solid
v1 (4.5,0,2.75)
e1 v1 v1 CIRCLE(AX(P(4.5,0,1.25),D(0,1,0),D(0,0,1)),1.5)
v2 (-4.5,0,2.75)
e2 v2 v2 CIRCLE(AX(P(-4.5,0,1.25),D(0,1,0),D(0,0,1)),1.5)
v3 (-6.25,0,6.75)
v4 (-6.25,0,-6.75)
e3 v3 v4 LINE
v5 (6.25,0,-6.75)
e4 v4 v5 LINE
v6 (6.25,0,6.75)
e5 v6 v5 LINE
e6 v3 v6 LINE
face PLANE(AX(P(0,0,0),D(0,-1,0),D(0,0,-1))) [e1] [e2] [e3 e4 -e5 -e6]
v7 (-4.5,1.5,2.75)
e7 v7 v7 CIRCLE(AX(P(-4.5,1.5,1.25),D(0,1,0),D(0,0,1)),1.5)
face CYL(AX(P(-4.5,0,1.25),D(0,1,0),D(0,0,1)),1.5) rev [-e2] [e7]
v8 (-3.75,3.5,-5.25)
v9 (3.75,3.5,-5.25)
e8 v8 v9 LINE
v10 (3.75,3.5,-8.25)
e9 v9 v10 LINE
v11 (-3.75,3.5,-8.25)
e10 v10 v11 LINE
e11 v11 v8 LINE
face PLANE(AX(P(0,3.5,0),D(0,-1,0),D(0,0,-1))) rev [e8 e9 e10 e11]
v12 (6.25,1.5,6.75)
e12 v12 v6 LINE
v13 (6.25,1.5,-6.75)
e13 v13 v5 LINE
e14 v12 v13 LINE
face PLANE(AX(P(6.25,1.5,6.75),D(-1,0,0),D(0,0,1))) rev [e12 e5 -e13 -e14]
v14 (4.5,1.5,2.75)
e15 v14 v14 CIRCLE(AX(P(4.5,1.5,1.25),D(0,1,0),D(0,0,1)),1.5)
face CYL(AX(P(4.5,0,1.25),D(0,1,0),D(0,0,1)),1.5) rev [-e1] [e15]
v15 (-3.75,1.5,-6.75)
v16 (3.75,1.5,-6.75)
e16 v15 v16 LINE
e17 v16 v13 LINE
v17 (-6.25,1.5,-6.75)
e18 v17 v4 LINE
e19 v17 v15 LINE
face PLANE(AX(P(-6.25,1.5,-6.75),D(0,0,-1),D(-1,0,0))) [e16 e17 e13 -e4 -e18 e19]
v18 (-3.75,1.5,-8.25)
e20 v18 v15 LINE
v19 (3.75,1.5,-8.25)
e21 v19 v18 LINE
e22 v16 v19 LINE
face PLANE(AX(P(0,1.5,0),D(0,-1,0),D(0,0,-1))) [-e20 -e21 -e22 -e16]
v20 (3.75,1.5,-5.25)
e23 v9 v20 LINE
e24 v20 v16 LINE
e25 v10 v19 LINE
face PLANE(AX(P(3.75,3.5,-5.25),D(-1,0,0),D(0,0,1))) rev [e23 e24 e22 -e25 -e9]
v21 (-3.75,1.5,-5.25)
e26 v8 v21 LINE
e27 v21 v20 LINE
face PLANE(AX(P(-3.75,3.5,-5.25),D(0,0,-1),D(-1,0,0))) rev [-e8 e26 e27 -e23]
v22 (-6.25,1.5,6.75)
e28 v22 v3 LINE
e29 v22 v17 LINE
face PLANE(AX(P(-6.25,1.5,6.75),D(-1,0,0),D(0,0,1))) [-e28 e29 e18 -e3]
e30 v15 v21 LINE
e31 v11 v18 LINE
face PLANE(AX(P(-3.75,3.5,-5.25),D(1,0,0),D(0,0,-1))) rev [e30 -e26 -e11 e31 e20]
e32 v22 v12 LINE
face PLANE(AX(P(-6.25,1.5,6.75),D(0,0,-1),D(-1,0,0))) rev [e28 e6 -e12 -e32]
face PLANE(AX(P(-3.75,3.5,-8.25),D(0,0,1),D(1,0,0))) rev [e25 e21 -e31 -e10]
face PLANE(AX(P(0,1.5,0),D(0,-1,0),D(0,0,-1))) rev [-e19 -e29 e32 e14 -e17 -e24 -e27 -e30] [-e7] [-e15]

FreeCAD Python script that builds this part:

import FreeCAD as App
import Part
import Sketcher
Q = App.Units.Quantity

doc = App.newDocument("Part")
body = doc.addObject("PartDesign::Body", "Body")

sketch1 = body.newObject("Sketcher::SketchObject", "Sketch")
sketch1.AttachmentSupport = (doc.getObject("XZ_Plane"), [""])
sketch1.MapMode = "FlatFace"
sketch1.addGeometry([
    Part.LineSegment(App.Vector(-6.25, -6.75, 0), App.Vector(-6.25, 6.75, 0)),
    Part.LineSegment(App.Vector(-6.25, 6.75, 0), App.Vector(6.25, 6.75, 0)),
    Part.LineSegment(App.Vector(6.25, 6.75, 0), App.Vector(6.25, -6.75, 0)),
    Part.LineSegment(App.Vector(6.25, -6.75, 0), App.Vector(-6.25, -6.75, 0)),
], False)
sketch1.addConstraint([
    Sketcher.Constraint("Coincident", 0, 2, 1, 1),
    Sketcher.Constraint("Coincident", 1, 2, 2, 1),
    Sketcher.Constraint("Coincident", 2, 2, 3, 1),
    Sketcher.Constraint("Coincident", 3, 2, 0, 1),
    Sketcher.Constraint("Vertical", 0),
    Sketcher.Constraint("Horizontal", 1),
    Sketcher.Constraint("Vertical", 2),
    Sketcher.Constraint("Horizontal", 3),
    Sketcher.Constraint("Symmetric", 0, 2, 2, 2, -1, 1),
    Sketcher.Constraint("DistanceX", 1, 1, 1, 2, Q("12.5 mm")),
    Sketcher.Constraint("DistanceY", 0, 1, 0, 2, Q("13.5 mm")),
])
pad1 = body.newObject("PartDesign::Pad", "Pad")
pad1.Profile = sketch1
pad1.Length = 1.5
pad1.Reversed = True

sketch2 = body.newObject("Sketcher::SketchObject", "Sketch001")
sketch2.AttachmentSupport = (doc.getObject("XZ_Plane"), [""])
sketch2.MapMode = "FlatFace"
sketch2.AttachmentOffset = App.Placement(App.Vector(0, 0, -1.5), App.Rotation())
sketch2.addGeometry([
    Part.LineSegment(App.Vector(-3.75, -8.25, 0), App.Vector(-3.75, -5.25, 0)),
    Part.LineSegment(App.Vector(-3.75, -5.25, 0), App.Vector(3.75, -5.25, 0)),
    Part.LineSegment(App.Vector(3.75, -5.25, 0), App.Vector(3.75, -8.25, 0)),
    Part.LineSegment(App.Vector(3.75, -8.25, 0), App.Vector(-3.75, -8.25, 0)),
], False)
sketch2.addConstraint([
    Sketcher.Constraint("Coincident", 0, 2, 1, 1),
    Sketcher.Constraint("Coincident", 1, 2, 2, 1),
    Sketcher.Constraint("Coincident", 2, 2, 3, 1),
    Sketcher.Constraint("Coincident", 3, 2, 0, 1),
    Sketcher.Constraint("Vertical", 0),
    Sketcher.Constraint("Horizontal", 1),
    Sketcher.Constraint("Vertical", 2),
    Sketcher.Constraint("Horizontal", 3),
    Sketcher.Constraint("DistanceY", 0, 1, 0, 2, Q("3 mm")),
    Sketcher.Constraint("DistanceX", 1, 1, 1, 2, Q("7.5 mm")),
    Sketcher.Constraint("DistanceX", 0, 2, -1, 1, Q("3.75 mm")),
    Sketcher.Constraint("DistanceY", 0, 2, -1, 1, Q("5.25 mm")),
])
pad2 = body.newObject("PartDesign::Pad", "Pad001")
pad2.Profile = sketch2
pad2.Length = 2
pad2.Reversed = True

sketch3 = body.newObject("Sketcher::SketchObject", "Sketch002")
sketch3.AttachmentSupport = (doc.getObject("XZ_Plane"), [""])
sketch3.MapMode = "FlatFace"
sketch3.AttachmentOffset = App.Placement(App.Vector(0, 0, -1.5), App.Rotation())
sketch3.addGeometry([
    Part.Circle(App.Vector(-4.5, 1.25, 0), App.Vector(0, 0, 1), 1.5),
    Part.Circle(App.Vector(4.5, 1.25, 0), App.Vector(0, 0, 1), 1.5),
], False)
sketch3.addConstraint([
    Sketcher.Constraint("Equal", 0, 1),
    Sketcher.Constraint("Symmetric", 0, 3, 1, 3, -2),
    Sketcher.Constraint("Diameter", 0, Q("3 mm")),
    Sketcher.Constraint("DistanceX", 0, 3, 1, 3, Q("9 mm")),
    Sketcher.Constraint("DistanceY", -1, 1, 0, 3, Q("1.25 mm")),
])
pocket1 = body.newObject("PartDesign::Pocket", "Pocket")
pocket1.Profile = sketch3
pocket1.Type = "ThroughAll"
pocket1.Reversed = True

doc.recompute()
